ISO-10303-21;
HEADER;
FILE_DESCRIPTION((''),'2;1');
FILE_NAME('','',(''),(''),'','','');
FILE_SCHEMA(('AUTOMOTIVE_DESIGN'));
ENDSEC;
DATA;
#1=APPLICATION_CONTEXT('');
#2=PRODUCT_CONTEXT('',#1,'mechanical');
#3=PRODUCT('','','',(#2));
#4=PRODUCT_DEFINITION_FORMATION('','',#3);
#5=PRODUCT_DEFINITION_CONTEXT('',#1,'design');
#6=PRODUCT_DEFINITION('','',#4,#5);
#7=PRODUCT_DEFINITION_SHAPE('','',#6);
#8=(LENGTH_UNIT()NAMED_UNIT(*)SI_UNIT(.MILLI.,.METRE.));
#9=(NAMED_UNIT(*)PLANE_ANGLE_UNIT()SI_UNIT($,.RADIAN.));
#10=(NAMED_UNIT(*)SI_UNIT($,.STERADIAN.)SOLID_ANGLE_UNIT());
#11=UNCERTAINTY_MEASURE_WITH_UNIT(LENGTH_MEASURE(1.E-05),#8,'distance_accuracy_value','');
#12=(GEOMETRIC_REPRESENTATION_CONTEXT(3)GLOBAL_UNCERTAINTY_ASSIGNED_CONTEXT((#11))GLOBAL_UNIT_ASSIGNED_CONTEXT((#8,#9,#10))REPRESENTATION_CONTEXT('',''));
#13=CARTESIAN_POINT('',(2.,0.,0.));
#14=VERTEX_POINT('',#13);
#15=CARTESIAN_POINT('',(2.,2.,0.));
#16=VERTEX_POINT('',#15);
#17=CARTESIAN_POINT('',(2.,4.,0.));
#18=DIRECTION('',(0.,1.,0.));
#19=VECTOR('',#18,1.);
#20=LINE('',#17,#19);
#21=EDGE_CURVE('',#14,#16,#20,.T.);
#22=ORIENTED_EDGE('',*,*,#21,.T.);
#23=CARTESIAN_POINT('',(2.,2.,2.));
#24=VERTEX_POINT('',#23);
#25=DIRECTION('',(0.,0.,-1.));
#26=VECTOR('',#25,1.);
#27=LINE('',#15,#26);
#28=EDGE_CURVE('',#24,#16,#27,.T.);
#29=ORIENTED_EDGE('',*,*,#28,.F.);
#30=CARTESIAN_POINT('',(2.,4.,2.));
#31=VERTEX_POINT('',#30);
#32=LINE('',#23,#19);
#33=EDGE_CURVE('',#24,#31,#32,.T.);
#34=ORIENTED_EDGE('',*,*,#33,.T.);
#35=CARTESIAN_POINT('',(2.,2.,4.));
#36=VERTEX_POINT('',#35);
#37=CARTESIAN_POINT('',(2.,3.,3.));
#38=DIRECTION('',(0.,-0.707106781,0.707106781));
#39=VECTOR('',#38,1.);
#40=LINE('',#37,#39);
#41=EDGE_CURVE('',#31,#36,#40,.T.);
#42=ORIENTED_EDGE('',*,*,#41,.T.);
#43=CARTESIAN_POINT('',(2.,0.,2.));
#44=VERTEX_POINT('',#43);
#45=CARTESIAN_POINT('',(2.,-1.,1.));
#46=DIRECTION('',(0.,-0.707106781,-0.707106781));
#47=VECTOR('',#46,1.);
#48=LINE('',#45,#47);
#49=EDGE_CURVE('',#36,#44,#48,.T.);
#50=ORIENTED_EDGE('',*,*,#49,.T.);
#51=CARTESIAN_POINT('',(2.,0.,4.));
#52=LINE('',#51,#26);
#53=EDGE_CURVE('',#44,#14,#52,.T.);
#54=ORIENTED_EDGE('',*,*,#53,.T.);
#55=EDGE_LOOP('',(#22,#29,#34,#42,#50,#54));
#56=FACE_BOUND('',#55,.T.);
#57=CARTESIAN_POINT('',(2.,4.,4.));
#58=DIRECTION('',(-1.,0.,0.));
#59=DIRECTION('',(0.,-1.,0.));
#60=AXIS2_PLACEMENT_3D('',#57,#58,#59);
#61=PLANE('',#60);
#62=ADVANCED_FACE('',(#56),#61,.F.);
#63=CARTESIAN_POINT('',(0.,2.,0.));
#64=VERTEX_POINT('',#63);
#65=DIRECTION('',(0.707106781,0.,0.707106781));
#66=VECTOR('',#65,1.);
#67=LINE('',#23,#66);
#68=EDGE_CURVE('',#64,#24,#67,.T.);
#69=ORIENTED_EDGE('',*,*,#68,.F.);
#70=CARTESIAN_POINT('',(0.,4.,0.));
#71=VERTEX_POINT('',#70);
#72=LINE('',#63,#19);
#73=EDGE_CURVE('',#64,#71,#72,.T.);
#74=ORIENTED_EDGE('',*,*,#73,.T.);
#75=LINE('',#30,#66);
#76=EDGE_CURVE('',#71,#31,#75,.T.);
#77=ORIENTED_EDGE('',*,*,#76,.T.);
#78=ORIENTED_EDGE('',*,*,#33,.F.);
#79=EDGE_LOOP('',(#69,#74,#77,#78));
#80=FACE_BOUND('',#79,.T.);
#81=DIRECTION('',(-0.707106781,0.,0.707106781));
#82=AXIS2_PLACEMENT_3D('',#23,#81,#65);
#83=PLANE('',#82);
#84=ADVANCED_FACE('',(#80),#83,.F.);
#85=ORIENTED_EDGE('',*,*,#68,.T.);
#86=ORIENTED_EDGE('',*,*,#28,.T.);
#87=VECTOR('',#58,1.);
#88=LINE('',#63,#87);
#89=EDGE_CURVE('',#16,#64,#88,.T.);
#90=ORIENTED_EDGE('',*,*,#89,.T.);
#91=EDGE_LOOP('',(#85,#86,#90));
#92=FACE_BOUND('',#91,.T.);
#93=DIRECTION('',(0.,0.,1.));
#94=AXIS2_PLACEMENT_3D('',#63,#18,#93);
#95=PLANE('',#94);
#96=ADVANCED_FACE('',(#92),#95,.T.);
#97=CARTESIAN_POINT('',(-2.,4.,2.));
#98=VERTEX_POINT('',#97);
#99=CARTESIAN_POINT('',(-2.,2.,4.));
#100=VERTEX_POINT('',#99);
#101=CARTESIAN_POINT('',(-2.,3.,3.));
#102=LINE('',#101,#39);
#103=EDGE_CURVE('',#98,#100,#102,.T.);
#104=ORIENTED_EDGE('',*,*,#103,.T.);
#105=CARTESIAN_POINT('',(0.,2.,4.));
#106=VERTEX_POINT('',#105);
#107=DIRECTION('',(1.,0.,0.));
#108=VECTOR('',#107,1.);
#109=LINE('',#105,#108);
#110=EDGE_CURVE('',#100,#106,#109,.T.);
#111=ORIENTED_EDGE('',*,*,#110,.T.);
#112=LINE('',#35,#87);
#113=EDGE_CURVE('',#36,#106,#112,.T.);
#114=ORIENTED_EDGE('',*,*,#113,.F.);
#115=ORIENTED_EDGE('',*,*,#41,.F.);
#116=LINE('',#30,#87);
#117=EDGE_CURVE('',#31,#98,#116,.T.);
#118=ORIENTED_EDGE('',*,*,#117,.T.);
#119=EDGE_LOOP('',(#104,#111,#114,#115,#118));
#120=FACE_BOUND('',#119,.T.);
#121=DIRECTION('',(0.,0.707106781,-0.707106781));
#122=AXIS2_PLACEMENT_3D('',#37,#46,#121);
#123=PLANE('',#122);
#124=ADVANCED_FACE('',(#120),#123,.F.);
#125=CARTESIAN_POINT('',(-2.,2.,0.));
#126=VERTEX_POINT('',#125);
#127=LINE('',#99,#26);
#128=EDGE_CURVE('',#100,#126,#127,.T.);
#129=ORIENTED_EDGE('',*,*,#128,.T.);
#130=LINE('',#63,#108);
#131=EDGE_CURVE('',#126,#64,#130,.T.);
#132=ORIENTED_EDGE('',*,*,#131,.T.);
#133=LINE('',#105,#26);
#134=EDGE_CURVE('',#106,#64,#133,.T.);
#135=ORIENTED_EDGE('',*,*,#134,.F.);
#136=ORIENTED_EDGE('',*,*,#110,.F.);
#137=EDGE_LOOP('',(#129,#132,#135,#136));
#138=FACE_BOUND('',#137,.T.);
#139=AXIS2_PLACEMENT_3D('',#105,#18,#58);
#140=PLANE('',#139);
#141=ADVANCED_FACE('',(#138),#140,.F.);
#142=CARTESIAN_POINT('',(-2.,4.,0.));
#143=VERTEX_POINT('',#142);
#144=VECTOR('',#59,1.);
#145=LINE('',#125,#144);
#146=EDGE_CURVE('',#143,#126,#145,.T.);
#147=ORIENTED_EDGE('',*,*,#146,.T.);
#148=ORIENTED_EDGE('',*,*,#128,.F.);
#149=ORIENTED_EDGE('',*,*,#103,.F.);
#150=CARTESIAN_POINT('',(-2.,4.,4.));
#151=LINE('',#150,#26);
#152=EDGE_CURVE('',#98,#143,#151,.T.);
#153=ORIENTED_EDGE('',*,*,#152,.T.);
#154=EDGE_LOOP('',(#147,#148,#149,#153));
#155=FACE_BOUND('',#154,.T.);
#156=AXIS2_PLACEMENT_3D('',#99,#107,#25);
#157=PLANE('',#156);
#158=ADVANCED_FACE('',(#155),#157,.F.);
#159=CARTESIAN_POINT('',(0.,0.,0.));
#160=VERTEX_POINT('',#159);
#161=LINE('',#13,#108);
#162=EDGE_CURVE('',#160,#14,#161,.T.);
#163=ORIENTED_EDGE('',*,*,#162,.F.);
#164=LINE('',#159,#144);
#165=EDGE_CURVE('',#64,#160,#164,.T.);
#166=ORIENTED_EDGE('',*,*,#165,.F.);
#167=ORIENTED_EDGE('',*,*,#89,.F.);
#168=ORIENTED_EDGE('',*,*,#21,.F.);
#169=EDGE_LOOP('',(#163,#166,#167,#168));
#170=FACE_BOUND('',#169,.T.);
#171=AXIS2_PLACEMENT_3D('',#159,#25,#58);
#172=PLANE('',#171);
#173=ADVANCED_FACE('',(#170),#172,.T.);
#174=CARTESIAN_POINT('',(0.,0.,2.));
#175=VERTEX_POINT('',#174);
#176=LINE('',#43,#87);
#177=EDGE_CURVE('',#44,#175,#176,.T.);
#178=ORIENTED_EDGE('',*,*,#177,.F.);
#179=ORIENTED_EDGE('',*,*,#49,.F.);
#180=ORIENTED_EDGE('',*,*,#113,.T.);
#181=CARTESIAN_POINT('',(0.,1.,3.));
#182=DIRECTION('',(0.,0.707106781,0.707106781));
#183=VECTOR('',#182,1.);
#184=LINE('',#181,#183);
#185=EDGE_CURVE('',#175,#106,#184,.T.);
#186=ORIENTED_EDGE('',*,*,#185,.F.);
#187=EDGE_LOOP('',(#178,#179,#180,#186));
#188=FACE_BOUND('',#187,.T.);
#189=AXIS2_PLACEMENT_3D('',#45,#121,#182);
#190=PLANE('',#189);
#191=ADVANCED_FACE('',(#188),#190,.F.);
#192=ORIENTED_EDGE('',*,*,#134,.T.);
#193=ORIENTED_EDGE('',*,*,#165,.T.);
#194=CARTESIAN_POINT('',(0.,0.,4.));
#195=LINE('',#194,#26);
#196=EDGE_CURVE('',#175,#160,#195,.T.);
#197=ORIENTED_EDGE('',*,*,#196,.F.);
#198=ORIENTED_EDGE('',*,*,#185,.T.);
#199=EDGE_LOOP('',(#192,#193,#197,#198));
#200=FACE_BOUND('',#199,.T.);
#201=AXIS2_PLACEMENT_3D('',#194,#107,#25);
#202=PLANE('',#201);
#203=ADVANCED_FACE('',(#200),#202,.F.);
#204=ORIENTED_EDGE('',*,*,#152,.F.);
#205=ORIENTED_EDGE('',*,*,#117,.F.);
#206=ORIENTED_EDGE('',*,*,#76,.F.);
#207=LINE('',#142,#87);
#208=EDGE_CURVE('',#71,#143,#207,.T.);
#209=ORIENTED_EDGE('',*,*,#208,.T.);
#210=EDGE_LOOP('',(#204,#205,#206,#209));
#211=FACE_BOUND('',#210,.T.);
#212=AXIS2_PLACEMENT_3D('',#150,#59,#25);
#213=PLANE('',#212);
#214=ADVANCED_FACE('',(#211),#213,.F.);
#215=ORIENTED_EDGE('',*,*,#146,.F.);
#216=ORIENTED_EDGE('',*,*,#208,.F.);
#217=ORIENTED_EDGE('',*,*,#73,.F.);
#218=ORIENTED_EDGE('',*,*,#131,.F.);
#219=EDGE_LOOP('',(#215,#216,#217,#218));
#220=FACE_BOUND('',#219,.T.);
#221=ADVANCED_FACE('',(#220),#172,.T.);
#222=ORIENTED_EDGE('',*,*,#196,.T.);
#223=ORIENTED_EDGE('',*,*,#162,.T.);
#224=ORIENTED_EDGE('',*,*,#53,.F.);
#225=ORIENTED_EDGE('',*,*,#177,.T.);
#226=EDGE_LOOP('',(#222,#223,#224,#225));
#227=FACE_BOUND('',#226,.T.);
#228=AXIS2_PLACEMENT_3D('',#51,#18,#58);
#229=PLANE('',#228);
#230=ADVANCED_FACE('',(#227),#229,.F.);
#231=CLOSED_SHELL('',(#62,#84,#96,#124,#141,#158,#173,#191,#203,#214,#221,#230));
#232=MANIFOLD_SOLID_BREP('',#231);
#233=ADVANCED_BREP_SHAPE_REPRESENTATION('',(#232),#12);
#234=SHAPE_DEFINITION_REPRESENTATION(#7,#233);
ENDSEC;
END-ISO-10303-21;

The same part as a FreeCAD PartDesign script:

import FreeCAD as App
import Part
import Sketcher

V = App.Vector


def add_polygon(sketch, points):
    """Adds a closed chain of lines whose ends are joined by coincident constraints."""
    first, n = sketch.GeometryCount, len(points)
    for a, b in zip(points, points[1:] + points[:1]):
        sketch.addGeometry(Part.LineSegment(App.Vector(*a, 0), App.Vector(*b, 0)), False)
    for i in range(n):
        sketch.addConstraint(Sketcher.Constraint("Coincident", first + i, 2, first + (i + 1) % n, 1))

doc = App.newDocument("Part")
body = doc.addObject("PartDesign::Body", "Body")

sketch1 = doc.addObject("Sketcher::SketchObject", "Sketch")
body.addObject(sketch1)
sketch1.AttachmentSupport = (doc.XY_Plane, [""])
sketch1.MapMode = "FlatFace"
add_polygon(sketch1, [(0, 2), (0, 0), (2, 0), (2, 4), (-2, 4), (-2, 2)])
sketch1.addConstraint([
    Sketcher.Constraint("Vertical", 0),
    Sketcher.Constraint("Horizontal", 1),
    Sketcher.Constraint("Vertical", 2),
    Sketcher.Constraint("Horizontal", 3),
    Sketcher.Constraint("Vertical", 4),
    Sketcher.Constraint("Horizontal", 5),
    Sketcher.Constraint("Coincident", 0, 2, -1, 1),
    Sketcher.Constraint("Equal", 1, 5),
    Sketcher.Constraint("Equal", 5, 0),
    Sketcher.Constraint("Equal", 3, 2),
    Sketcher.Constraint("DistanceX", 1, 1, 1, 2, 2.0),
])
pad1 = doc.addObject("PartDesign::Pad", "Pad")
body.addObject(pad1)
pad1.Profile = sketch1
pad1.Length = 4

sketch2 = doc.addObject("Sketcher::SketchObject", "Sketch001")
body.addObject(sketch2)
sketch2.AttachmentSupport = (doc.YZ_Plane, [""])
sketch2.MapMode = "FlatFace"
sketch2.AttachmentOffset = App.Placement(V(0, 0, -2), App.Rotation())
add_polygon(sketch2, [(4, 4), (4, 2), (2, 4)])
add_polygon(sketch2, [(0, 4), (2, 4), (0, 2)])
sketch2.addConstraint([
    Sketcher.Constraint("Vertical", 0),
    Sketcher.Constraint("Horizontal", 2),
    Sketcher.Constraint("Horizontal", 3),
    Sketcher.Constraint("Vertical", 5),
    Sketcher.Constraint("Coincident", 3, 2, 1, 2),
    Sketcher.Constraint("PointOnObject", 4, 2, -2),
    Sketcher.Constraint("Perpendicular", 1, 4),
    Sketcher.Constraint("Horizontal", 0, 2, 4, 2),
    Sketcher.Constraint("Equal", 2, 3),
    Sketcher.Constraint("DistanceX", 2, 1, 2, 2, 2.0),
    Sketcher.Constraint("DistanceY", -1, 1, 0, 2, 2.0),
])
pocket1 = doc.addObject("PartDesign::Pocket", "Pocket")
body.addObject(pocket1)
pocket1.Profile = sketch2
pocket1.Length = 4
pocket1.Reversed = True

sketch3 = doc.addObject("Sketcher::SketchObject", "Sketch002")
body.addObject(sketch3)
sketch3.AttachmentSupport = (doc.XZ_Plane, [""])
sketch3.MapMode = "FlatFace"
sketch3.AttachmentOffset = App.Placement(V(0, 0, -4), App.Rotation())
add_polygon(sketch3, [(0, 0), (2, 2), (2, 0)])
sketch3.addConstraint([
    Sketcher.Constraint("Vertical", 1),
    Sketcher.Constraint("Horizontal", 2),
    Sketcher.Constraint("Coincident", 2, 2, -1, 1),
    Sketcher.Constraint("Equal", 2, 1),
    Sketcher.Constraint("DistanceX", 2, 2, 2, 1, 2.0),
])
pocket2 = doc.addObject("PartDesign::Pocket", "Pocket001")
body.addObject(pocket2)
pocket2.Profile = sketch3
pocket2.Length = 2
pocket2.Reversed = True

doc.recompute()
